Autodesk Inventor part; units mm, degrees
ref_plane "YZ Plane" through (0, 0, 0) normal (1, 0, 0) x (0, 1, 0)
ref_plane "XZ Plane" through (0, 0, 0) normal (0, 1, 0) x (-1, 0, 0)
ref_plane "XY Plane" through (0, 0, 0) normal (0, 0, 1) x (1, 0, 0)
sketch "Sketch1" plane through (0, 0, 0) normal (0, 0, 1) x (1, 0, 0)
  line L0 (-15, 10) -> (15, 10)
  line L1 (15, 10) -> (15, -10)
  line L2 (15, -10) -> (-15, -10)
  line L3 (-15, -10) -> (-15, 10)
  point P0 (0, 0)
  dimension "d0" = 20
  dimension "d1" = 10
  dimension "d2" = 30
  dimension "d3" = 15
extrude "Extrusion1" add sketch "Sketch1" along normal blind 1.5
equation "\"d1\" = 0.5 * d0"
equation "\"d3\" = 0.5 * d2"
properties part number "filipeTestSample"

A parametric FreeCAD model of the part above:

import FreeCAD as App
import Part
import Sketcher

V = App.Vector
Q = App.Units.Quantity

doc = App.newDocument("Part")
body = doc.addObject("PartDesign::Body", "Body")

# Sketch on XY plane
sketch1 = doc.addObject("Sketcher::SketchObject", "Sketch")
body.addObject(sketch1)
sketch1.AttachmentSupport = (doc.XY_Plane, [""])
sketch1.MapMode = "FlatFace"
sketch1.addGeometry([
    Part.LineSegment(V(15, 10, 0), V(-15, 10, 0)),
    Part.LineSegment(V(-15, 10, 0), V(-15, -10, 0)),
    Part.LineSegment(V(-15, -10, 0), V(15, -10, 0)),
    Part.LineSegment(V(15, -10, 0), V(15, 10, 0)),
], False)
sketch1.addConstraint([
    Sketcher.Constraint("Coincident", 0, 2, 1, 1),
    Sketcher.Constraint("Coincident", 1, 2, 2, 1),
    Sketcher.Constraint("Coincident", 2, 2, 3, 1),
    Sketcher.Constraint("Coincident", 3, 2, 0, 1),
    Sketcher.Constraint("Horizontal", 0),
    Sketcher.Constraint("Vertical", 1),
    Sketcher.Constraint("Horizontal", 2),
    Sketcher.Constraint("Vertical", 3),
    Sketcher.Constraint("Symmetric", 0, 2, 2, 2, -1, 1),
    Sketcher.Constraint("DistanceX", 0, 2, 0, 1, Q("30 mm")),
    Sketcher.Constraint("DistanceY", 1, 2, 1, 1, Q("20 mm")),
])
pad1 = doc.addObject("PartDesign::Pad", "Pad")
body.addObject(pad1)
pad1.Profile = sketch1
pad1.Length = 1.5

doc.recompute()
